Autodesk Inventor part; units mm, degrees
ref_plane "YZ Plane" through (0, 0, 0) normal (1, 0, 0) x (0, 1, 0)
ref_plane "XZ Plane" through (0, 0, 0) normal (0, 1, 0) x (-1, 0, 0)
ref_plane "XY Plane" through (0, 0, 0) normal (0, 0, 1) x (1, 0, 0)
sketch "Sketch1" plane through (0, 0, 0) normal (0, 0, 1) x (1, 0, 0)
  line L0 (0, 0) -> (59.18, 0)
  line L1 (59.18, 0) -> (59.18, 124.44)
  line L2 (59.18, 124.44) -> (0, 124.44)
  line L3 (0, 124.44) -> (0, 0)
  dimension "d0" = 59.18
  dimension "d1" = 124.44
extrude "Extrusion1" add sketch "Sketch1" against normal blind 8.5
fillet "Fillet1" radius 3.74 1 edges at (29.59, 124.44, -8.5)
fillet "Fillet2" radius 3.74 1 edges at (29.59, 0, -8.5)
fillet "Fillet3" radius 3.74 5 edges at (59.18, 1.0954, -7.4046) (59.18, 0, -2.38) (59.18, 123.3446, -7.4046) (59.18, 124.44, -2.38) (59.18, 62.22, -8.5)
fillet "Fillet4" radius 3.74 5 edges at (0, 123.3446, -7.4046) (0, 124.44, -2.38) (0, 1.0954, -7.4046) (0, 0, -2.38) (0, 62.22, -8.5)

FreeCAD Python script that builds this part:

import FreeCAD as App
import Part
import Sketcher

V = App.Vector


def edges_at(feature, points):
    """Names of the edges that pass closest to the given points."""
    edges = feature.Shape.Edges
    near = lambda p: min(range(len(edges)), key=lambda i: edges[i].distToShape(Part.Vertex(*p))[0])
    return sorted({f"Edge{near(p) + 1}" for p in points})

doc = App.newDocument("Part")
body = doc.addObject("PartDesign::Body", "Body")

sketch1 = body.newObject("Sketcher::SketchObject", "Sketch")
sketch1.AttachmentSupport = (doc.getObject("XY_Plane"), [""])
sketch1.MapMode = "FlatFace"
sketch1.addGeometry(Part.LineSegment(V(0, 124, 0), V(0, 0, 0)), False)
sketch1.addGeometry(Part.LineSegment(V(0, 0, 0), V(59, 0, 0)), False)
sketch1.addGeometry(Part.LineSegment(V(59, 0, 0), V(59, 124, 0)), False)
sketch1.addGeometry(Part.LineSegment(V(59, 124, 0), V(0, 124, 0)), False)
sketch1.addConstraint(Sketcher.Constraint("Coincident", 0, 2, 1, 1))
sketch1.addConstraint(Sketcher.Constraint("Coincident", 1, 2, 2, 1))
sketch1.addConstraint(Sketcher.Constraint("Coincident", 2, 2, 3, 1))
sketch1.addConstraint(Sketcher.Constraint("Coincident", 3, 2, 0, 1))
sketch1.addConstraint(Sketcher.Constraint("Vertical", 0))
sketch1.addConstraint(Sketcher.Constraint("Horizontal", 1))
sketch1.addConstraint(Sketcher.Constraint("Vertical", 2))
sketch1.addConstraint(Sketcher.Constraint("Horizontal", 3))
sketch1.addConstraint(Sketcher.Constraint("Coincident", 0, 2, -1, 1))
sketch1.addConstraint(Sketcher.Constraint("DistanceX", 1, 1, 1, 2, 59.18))
sketch1.addConstraint(Sketcher.Constraint("DistanceY", 0, 2, 0, 1, 124.44))
pad1 = body.newObject("PartDesign::Pad", "Pad")
pad1.Profile = sketch1
pad1.Length = 8.5
pad1.Reversed = True
doc.recompute()

fillet = body.newObject("PartDesign::Fillet", "Fillet")
fillet.Base = (pad1, edges_at(pad1, [(29.59, 124.44, -8.5)]))
fillet.Radius = 3.74
doc.recompute()

fillet2 = body.newObject("PartDesign::Fillet", "Fillet001")
fillet2.Base = (fillet, edges_at(fillet, [(29.59, 0, -8.5)]))
fillet2.Radius = 3.74
doc.recompute()

fillet3 = body.newObject("PartDesign::Fillet", "Fillet002")
fillet3.Base = (fillet2, edges_at(fillet2, [
    (59.18, 1.095, -7.405),
    (59.18, 0, -2.38),
    (59.18, 123.345, -7.405),
    (59.18, 124.44, -2.38),
    (59.18, 62.22, -8.5),
]))
fillet3.Radius = 3.74
doc.recompute()

fillet4 = body.newObject("PartDesign::Fillet", "Fillet003")
fillet4.Base = (fillet3, edges_at(fillet3, [
    (0, 123.345, -7.405),
    (0, 124.44, -2.38),
    (0, 1.095, -7.405),
    (0, 0, -2.38),
    (0, 62.22, -8.5),
]))
fillet4.Radius = 3.74

doc.recompute()
